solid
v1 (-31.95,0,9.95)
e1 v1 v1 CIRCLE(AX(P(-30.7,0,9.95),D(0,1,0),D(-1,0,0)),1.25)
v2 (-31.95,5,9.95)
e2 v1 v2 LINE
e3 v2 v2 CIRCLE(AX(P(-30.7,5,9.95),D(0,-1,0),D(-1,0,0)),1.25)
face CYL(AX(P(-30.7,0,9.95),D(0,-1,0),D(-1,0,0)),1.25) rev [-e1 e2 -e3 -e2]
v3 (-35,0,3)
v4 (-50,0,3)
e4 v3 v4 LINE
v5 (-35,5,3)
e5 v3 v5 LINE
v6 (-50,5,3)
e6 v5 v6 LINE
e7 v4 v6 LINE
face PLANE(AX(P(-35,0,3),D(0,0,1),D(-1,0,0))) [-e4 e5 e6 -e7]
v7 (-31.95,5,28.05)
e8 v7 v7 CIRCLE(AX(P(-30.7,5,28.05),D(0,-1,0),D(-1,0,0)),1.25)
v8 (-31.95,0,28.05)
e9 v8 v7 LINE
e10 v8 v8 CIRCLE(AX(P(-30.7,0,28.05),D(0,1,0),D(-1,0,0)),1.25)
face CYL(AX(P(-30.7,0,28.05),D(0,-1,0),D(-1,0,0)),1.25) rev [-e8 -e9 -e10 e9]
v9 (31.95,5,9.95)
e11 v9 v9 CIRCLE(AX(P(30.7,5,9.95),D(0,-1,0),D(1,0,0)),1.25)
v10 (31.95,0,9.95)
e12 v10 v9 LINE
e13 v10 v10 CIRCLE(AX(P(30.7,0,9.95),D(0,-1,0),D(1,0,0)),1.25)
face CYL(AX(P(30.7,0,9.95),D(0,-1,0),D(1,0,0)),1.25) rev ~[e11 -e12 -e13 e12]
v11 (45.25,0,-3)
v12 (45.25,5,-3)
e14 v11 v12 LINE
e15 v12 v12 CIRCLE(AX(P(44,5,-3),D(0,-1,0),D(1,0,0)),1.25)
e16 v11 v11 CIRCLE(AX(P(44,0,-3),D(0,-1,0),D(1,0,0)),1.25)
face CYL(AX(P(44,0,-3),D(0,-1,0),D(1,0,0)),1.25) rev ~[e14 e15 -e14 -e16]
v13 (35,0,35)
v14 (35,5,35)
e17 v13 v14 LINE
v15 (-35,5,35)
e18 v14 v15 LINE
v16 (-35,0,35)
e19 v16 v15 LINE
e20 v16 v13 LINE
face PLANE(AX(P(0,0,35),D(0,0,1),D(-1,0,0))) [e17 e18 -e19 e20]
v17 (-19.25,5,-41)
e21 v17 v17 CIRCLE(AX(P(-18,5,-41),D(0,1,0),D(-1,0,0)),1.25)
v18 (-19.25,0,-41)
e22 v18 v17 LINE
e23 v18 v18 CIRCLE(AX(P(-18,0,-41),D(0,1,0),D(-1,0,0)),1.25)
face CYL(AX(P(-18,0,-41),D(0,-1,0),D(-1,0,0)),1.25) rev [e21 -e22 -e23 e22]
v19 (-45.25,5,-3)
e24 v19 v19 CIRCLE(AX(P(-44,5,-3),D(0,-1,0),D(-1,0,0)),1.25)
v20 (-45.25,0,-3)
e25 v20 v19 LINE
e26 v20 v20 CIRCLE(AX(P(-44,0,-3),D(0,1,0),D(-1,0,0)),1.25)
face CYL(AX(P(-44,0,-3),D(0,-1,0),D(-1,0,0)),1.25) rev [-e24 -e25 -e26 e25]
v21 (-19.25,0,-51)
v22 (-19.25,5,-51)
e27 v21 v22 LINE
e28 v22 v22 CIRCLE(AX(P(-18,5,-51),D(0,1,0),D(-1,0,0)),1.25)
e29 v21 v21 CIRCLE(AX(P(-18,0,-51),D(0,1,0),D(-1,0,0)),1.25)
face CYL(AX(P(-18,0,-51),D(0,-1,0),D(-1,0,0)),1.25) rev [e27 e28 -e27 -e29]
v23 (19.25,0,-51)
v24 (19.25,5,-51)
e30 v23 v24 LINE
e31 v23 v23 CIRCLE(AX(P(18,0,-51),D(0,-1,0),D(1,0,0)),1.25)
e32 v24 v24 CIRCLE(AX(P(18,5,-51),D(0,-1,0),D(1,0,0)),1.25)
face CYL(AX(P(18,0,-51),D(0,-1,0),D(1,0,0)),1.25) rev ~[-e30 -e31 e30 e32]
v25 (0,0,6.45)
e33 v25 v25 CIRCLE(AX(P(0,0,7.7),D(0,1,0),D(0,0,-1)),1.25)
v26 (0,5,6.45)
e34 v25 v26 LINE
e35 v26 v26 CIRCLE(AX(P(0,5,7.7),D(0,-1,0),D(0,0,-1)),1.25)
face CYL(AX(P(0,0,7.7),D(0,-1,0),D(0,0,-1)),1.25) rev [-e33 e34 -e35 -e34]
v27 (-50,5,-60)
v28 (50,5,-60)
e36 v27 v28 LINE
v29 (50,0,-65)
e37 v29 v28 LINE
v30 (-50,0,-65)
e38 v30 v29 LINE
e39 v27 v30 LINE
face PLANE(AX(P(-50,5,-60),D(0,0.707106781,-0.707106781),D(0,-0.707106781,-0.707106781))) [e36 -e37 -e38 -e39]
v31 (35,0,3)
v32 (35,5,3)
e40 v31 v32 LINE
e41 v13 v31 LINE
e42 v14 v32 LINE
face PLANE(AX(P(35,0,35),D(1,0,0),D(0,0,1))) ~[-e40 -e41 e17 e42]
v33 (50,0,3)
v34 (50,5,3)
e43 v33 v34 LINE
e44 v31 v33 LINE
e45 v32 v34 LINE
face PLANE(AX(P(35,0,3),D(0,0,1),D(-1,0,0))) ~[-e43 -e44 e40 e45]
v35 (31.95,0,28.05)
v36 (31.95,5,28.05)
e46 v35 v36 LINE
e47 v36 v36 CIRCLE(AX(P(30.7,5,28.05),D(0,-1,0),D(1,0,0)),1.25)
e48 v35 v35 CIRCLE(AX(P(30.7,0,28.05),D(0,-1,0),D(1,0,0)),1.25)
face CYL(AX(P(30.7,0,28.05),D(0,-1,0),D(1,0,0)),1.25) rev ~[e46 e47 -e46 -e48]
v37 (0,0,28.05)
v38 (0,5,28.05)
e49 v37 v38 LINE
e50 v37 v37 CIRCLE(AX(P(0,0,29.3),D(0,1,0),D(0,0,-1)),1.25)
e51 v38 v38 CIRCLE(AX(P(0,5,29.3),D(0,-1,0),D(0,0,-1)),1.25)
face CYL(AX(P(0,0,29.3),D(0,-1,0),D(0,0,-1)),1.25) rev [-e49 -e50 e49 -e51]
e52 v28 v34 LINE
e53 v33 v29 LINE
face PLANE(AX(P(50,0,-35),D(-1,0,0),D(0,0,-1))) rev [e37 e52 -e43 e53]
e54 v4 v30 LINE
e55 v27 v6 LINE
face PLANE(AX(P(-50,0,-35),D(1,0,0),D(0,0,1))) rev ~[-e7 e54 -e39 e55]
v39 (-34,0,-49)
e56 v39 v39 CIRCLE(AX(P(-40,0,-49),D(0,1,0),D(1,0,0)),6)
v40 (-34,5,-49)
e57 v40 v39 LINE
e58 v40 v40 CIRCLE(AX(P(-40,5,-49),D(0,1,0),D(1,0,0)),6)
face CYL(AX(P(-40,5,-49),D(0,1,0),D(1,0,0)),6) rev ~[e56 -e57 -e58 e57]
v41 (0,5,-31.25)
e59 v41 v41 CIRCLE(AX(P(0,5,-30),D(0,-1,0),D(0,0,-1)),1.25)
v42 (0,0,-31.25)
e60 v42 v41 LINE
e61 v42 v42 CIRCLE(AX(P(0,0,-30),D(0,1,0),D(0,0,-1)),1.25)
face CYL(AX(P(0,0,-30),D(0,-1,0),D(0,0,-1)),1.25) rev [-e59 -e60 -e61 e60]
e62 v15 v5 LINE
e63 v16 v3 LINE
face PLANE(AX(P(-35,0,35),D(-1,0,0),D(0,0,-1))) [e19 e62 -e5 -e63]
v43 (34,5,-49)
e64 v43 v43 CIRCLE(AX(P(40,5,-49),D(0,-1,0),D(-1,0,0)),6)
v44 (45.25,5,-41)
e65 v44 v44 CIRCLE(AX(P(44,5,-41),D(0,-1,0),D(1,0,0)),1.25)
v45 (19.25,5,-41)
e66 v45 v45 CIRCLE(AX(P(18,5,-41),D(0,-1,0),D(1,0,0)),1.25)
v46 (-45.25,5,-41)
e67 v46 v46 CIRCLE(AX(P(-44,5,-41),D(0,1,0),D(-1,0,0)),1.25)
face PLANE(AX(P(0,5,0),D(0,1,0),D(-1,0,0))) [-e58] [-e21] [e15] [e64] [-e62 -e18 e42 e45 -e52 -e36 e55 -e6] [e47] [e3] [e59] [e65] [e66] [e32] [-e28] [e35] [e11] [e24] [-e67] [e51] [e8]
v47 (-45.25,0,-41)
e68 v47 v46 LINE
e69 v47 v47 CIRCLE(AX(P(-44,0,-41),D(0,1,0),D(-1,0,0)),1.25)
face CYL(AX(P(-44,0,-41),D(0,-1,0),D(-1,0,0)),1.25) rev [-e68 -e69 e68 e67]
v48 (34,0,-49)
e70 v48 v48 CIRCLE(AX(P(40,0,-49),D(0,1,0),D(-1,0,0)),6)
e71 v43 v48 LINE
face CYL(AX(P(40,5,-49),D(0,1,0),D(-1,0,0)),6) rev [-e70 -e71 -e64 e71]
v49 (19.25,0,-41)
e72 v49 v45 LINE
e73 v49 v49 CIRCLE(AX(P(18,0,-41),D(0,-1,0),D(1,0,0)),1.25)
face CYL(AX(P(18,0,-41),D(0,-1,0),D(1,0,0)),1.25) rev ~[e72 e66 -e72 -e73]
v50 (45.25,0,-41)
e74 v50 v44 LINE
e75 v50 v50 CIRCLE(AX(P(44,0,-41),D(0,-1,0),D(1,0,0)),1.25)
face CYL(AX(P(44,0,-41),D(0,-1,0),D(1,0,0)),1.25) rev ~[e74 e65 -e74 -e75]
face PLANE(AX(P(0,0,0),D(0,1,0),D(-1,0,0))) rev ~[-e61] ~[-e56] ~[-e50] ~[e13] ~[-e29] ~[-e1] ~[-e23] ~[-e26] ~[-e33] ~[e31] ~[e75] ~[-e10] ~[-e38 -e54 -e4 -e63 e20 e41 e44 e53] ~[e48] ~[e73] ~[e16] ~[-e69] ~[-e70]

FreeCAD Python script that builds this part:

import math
import FreeCAD as App
import Part
import Sketcher
from FreeCAD import Vector
Q = App.Units.Quantity


def add_polygon(sketch, points):
    """Adds a closed chain of lines whose ends are joined by coincident constraints."""
    first, n = sketch.GeometryCount, len(points)
    for a, b in zip(points, points[1:] + points[:1]):
        sketch.addGeometry(Part.LineSegment(App.Vector(*a, 0), App.Vector(*b, 0)), False)
    for i in range(n):
        sketch.addConstraint(Sketcher.Constraint("Coincident", first + i, 2, first + (i + 1) % n, 1))

doc = App.newDocument("Part")
body = doc.addObject("PartDesign::Body", "Body")

sketch1 = body.newObject("Sketcher::SketchObject", "Sketch")
sketch1.AttachmentSupport = (doc.getObject("XZ_Plane"), [""])
sketch1.MapMode = "FlatFace"
add_polygon(sketch1, [(-35, 3), (-35, 35), (0, 35), (0, -65), (-50, -65), (-50, 3)])
sketch1.addGeometry(Part.Circle(Vector(-44, -41, 0), Vector(0, 0, 1), 1.2), False)
sketch1.addGeometry(Part.Circle(Vector(-18, -51, 0), Vector(0, 0, 1), 1.2), False)
sketch1.addGeometry(Part.Circle(Vector(-18, -41, 0), Vector(0, 0, 1), 1.2), False)
sketch1.addConstraint([
    Sketcher.Constraint("Vertical", 0),
    Sketcher.Constraint("Horizontal", 1),
    Sketcher.Constraint("Vertical", 2),
    Sketcher.Constraint("Horizontal", 3),
    Sketcher.Constraint("Vertical", 4),
    Sketcher.Constraint("Horizontal", 5),
    Sketcher.Constraint("Equal", 6, 7),
    Sketcher.Constraint("Equal", 7, 8),
    Sketcher.Constraint("PointOnObject", 1, 2, -2),
    Sketcher.Constraint("Horizontal", 6, 3, 8, 3),
    Sketcher.Constraint("Vertical", 7, 3, 8, 3),
    Sketcher.Constraint("Diameter", 6, Q("2.5 mm")),
    Sketcher.Constraint("DistanceX", 3, 2, 3, 1, Q("50 mm")),
    Sketcher.Constraint("DistanceY", 0, 1, 0, 2, Q("32 mm")),
    Sketcher.Constraint("DistanceX", 6, 3, 7, 3, Q("26 mm")),
    Sketcher.Constraint("DistanceY", 7, 3, 6, 3, Q("10 mm")),
    Sketcher.Constraint("DistanceX", 6, 3, 0, 2, Q("9 mm")),
    Sketcher.Constraint("DistanceX", 3, 2, 6, 3, Q("6 mm")),
    Sketcher.Constraint("DistanceY", 2, 2, 2, 1, Q("100 mm")),
    Sketcher.Constraint("DistanceY", 6, 3, -1, 1, Q("41 mm")),
    Sketcher.Constraint("DistanceY", -1, 1, 0, 2, Q("35 mm")),
])
pad1 = body.newObject("PartDesign::Pad", "Pad")
pad1.Profile = sketch1
pad1.Length = 5
pad1.Reversed = True

sketch2 = body.newObject("Sketcher::SketchObject", "Sketch001")
sketch2.AttachmentSupport = (doc.getObject("XZ_Plane"), [""])
sketch2.MapMode = "FlatFace"
sketch2.addGeometry([
    Part.ArcOfCircle(Part.Circle(Vector(0, 29.3, 0), Vector(0, 0, 1), 1.2), math.radians(90), math.radians(270)),
    Part.LineSegment(Vector(0, 30.6, 0), Vector(0, 28.1, 0)),
    Part.ArcOfCircle(Part.Circle(Vector(0, 7.7, 0), Vector(0, 0, 1), 1.2), math.radians(90), math.radians(270)),
    Part.LineSegment(Vector(0, 8.9, 0), Vector(0, 6.5, 0)),
    Part.LineSegment(Vector(0, -28.8, 0), Vector(0, -31.2, 0)),
    Part.ArcOfCircle(Part.Circle(Vector(0, -30, 0), Vector(0, 0, 1), 1.2), math.radians(90), math.radians(270)),
    Part.Circle(Vector(-30.7, 9.9, 0), Vector(0, 0, 1), 1.2),
    Part.Circle(Vector(-30.7, 28.1, 0), Vector(0, 0, 1), 1.2),
    Part.Circle(Vector(-44, -3, 0), Vector(0, 0, 1), 1.2),
], False)
sketch2.addConstraint([
    Sketcher.Constraint("Coincident", 0, 1, 1, 1),
    Sketcher.Constraint("Coincident", 1, 2, 0, 2),
    Sketcher.Constraint("Coincident", 2, 1, 3, 1),
    Sketcher.Constraint("Coincident", 3, 2, 2, 2),
    Sketcher.Constraint("Coincident", 4, 1, 5, 1),
    Sketcher.Constraint("Coincident", 5, 2, 4, 2),
    Sketcher.Constraint("Vertical", 1),
    Sketcher.Constraint("Vertical", 3),
    Sketcher.Constraint("Vertical", 4),
    Sketcher.Constraint("Equal", 0, 2),
    Sketcher.Constraint("Equal", 2, 5),
    Sketcher.Constraint("Equal", 5, 6),
    Sketcher.Constraint("Equal", 6, 7),
    Sketcher.Constraint("Equal", 7, 8),
    Sketcher.Constraint("PointOnObject", 0, 3, -2),
    Sketcher.Constraint("PointOnObject", 2, 3, -2),
    Sketcher.Constraint("PointOnObject", 5, 3, -2),
    Sketcher.Constraint("PointOnObject", 0, 1, -2),
    Sketcher.Constraint("PointOnObject", 2, 1, -2),
    Sketcher.Constraint("PointOnObject", 4, 1, -2),
    Sketcher.Constraint("Horizontal", 7, 3, 1, 2),
    Sketcher.Constraint("Vertical", 6, 3, 7, 3),
    Sketcher.Constraint("Diameter", 6, Q("2.5 mm")),
    Sketcher.Constraint("DistanceY", 5, 3, -1, 1, Q("30 mm")),
    Sketcher.Constraint("DistanceY", 6, 3, 7, 3, Q("18.1 mm")),
    Sketcher.Constraint("DistanceY", 2, 3, 6, 3, Q("2.25 mm")),
    Sketcher.Constraint("DistanceX", 8, 3, -1, 1, Q("44 mm")),
    Sketcher.Constraint("DistanceY", 8, 3, -1, 1, Q("3 mm")),
    Sketcher.Constraint("DistanceY", -1, 1, 0, 3, Q("29.3 mm")),
    Sketcher.Constraint("DistanceX", 6, 3, -1, 1, Q("30.7 mm")),
])
pocket1 = body.newObject("PartDesign::Pocket", "Pocket")
pocket1.Profile = sketch2
pocket1.Type = "ThroughAll"
doc.recompute()

mirrored = body.newObject("PartDesign::Mirrored", "Mirrored")
mirrored.Originals = [pad1, pocket1]
mirrored.MirrorPlane = (doc.getObject("YZ_Plane"), [""])
body.Tip = mirrored

sketch3 = body.newObject("Sketcher::SketchObject", "Sketch002")
sketch3.AttachmentSupport = (doc.getObject("YZ_Plane"), [""])
sketch3.MapMode = "FlatFace"
sketch3.AttachmentOffset = App.Placement(Vector(0, 0, -50), App.Rotation())
add_polygon(sketch3, [(5, -60), (5, -65), (0, -65)])
sketch3.addConstraint([
    Sketcher.Constraint("Vertical", 0),
    Sketcher.Constraint("Horizontal", 1),
    Sketcher.Constraint("PointOnObject", 1, 2, -2),
    Sketcher.Constraint("Equal", 1, 0),
    Sketcher.Constraint("DistanceX", 1, 2, 1, 1, Q("5 mm")),
    Sketcher.Constraint("DistanceY", 0, 2, -1, 1, Q("65 mm")),
])
pocket2 = body.newObject("PartDesign::Pocket", "Pocket001")
pocket2.Profile = sketch3
pocket2.Type = "ThroughAll"
pocket2.Reversed = True

sketch4 = body.newObject("Sketcher::SketchObject", "Sketch003")
sketch4.AttachmentSupport = (doc.getObject("XZ_Plane"), [""])
sketch4.MapMode = "FlatFace"
sketch4.AttachmentOffset = App.Placement(Vector(0, 0, -5), App.Rotation())
sketch4.addGeometry(Part.Circle(Vector(-40, -49, 0), Vector(0, 0, 1), 6), False)
sketch4.addConstraint([
    Sketcher.Constraint("Diameter", 0, Q("12 mm")),
    Sketcher.Constraint("DistanceX", 0, 3, -1, 1, Q("40 mm")),
    Sketcher.Constraint("DistanceY", 0, 3, -1, 1, Q("49 mm")),
])
pocket3 = body.newObject("PartDesign::Pocket", "Pocket002")
pocket3.Profile = sketch4
pocket3.Type = "ThroughAll"
pocket3.Reversed = True
doc.recompute()

mirrored2 = body.newObject("PartDesign::Mirrored", "Mirrored001")
mirrored2.Originals = [pocket3]
mirrored2.MirrorPlane = (doc.getObject("YZ_Plane"), [""])
body.Tip = mirrored2

doc.recompute()
